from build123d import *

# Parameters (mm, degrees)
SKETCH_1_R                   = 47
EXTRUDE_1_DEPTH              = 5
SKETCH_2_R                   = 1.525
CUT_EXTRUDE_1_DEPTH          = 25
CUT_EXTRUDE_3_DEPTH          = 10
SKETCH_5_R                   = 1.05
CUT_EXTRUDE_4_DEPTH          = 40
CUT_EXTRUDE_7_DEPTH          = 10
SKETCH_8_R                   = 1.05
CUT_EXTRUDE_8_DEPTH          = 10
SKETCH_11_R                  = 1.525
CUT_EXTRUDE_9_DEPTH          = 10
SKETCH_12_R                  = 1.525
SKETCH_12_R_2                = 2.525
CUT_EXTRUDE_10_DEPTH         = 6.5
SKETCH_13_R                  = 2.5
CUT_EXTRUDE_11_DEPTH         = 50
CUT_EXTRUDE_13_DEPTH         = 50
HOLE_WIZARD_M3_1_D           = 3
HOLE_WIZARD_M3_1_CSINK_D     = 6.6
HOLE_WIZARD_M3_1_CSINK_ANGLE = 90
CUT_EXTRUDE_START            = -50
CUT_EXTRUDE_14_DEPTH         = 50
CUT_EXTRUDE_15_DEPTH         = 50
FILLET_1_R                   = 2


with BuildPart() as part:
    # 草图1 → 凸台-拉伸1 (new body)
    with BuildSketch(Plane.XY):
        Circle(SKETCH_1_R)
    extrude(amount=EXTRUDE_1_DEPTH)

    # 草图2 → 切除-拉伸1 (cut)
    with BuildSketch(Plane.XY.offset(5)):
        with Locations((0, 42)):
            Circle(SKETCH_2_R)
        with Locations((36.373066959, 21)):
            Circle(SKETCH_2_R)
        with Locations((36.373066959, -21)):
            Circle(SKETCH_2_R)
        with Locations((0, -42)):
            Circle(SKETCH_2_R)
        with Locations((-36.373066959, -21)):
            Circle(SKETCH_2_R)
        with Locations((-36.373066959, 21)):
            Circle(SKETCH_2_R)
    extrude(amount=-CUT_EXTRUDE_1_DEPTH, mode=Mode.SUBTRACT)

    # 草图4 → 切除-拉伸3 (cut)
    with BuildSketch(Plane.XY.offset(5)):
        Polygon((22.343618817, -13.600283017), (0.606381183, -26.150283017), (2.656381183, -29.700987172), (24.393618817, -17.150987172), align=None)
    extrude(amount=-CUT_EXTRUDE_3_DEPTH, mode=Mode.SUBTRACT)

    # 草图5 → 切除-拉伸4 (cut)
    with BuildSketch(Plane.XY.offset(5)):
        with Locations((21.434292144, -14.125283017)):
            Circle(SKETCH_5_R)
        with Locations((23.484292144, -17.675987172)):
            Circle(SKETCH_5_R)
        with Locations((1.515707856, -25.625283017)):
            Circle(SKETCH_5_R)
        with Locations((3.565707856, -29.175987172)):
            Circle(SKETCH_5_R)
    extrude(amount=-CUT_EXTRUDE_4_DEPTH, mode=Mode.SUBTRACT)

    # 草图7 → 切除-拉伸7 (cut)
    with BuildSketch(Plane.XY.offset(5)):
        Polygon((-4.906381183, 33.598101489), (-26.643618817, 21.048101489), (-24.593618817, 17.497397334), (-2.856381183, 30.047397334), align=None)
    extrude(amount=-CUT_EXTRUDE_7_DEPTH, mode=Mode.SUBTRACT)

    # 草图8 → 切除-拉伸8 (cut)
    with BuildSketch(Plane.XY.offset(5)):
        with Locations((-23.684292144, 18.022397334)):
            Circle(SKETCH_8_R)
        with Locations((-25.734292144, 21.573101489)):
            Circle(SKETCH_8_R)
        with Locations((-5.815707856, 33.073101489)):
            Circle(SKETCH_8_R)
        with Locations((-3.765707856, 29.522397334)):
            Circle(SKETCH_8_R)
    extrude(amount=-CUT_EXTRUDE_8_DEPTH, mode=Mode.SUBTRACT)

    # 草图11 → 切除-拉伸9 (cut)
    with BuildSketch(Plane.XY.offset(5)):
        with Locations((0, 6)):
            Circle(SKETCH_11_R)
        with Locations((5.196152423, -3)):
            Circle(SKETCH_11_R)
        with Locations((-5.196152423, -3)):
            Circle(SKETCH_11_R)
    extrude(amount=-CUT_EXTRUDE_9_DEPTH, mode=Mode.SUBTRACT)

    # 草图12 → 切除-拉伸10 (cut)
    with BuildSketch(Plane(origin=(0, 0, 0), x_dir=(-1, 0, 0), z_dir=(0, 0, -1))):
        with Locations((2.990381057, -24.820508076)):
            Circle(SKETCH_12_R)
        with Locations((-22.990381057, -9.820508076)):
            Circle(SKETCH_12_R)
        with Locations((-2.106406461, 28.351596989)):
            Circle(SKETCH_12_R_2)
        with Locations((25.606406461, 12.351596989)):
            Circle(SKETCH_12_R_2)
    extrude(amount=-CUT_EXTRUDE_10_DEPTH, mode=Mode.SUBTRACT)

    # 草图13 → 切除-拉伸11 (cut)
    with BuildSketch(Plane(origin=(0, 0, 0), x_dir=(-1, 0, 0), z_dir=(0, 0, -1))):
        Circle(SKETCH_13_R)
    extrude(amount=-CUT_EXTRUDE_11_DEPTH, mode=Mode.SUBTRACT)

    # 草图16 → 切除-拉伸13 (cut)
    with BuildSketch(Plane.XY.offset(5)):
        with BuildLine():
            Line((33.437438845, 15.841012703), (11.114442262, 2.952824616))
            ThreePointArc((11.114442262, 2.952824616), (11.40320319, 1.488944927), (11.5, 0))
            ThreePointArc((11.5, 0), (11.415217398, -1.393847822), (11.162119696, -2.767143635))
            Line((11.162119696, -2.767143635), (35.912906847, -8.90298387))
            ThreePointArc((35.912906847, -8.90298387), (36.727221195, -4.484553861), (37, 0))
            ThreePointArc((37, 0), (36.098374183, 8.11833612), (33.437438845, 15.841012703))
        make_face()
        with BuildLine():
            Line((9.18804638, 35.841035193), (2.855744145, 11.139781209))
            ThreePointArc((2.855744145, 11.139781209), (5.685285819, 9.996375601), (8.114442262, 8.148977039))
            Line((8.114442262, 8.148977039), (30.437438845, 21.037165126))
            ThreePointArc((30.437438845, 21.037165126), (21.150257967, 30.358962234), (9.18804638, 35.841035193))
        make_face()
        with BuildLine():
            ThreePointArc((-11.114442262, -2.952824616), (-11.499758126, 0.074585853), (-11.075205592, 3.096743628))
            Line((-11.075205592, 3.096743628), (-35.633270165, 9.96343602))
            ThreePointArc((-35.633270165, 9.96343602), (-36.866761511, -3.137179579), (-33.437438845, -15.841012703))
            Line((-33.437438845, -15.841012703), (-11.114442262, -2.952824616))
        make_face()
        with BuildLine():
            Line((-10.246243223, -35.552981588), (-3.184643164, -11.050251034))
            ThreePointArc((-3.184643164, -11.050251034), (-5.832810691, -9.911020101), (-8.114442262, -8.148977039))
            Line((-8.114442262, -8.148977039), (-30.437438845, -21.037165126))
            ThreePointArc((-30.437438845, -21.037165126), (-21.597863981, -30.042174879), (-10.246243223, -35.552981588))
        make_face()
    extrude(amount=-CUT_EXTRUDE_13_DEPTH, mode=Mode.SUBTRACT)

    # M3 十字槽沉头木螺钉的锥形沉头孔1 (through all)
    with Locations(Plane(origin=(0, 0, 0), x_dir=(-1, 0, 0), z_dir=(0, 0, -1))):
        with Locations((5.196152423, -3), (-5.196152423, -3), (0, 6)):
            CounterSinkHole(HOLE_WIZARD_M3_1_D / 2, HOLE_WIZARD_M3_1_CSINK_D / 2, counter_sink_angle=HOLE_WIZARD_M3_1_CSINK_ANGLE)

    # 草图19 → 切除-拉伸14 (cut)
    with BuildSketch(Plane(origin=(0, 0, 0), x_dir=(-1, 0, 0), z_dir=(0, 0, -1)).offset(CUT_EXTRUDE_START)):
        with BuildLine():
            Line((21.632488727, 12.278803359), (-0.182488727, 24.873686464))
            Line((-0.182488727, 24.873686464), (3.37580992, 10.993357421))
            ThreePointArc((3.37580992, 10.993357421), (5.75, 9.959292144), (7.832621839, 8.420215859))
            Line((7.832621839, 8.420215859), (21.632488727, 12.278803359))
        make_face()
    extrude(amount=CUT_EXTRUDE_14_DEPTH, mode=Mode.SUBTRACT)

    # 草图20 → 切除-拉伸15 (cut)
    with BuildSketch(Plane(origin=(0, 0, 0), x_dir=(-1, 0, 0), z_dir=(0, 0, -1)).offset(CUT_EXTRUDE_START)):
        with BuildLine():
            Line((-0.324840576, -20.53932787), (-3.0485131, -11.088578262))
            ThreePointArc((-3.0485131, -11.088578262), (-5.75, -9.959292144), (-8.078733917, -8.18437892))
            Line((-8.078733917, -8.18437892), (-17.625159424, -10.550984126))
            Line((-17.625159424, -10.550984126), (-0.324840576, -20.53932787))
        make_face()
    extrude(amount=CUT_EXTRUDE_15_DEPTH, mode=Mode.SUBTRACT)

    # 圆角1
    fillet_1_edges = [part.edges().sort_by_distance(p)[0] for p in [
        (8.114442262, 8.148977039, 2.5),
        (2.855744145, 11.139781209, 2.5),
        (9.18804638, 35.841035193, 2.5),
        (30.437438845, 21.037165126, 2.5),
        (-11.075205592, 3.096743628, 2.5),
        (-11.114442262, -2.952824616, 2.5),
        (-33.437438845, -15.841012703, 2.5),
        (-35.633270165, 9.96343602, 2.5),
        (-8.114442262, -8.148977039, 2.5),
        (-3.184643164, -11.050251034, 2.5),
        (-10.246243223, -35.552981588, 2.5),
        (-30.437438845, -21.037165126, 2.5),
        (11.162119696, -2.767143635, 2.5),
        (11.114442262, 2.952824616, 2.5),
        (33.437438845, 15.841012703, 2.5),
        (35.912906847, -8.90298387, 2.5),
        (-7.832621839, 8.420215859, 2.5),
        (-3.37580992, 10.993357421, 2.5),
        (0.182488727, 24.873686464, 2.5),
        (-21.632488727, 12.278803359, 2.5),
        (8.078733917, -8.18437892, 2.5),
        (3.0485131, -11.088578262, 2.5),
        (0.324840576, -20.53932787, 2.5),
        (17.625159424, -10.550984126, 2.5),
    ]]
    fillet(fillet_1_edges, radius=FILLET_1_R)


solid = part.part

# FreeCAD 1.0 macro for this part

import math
import FreeCAD as App
import Part
import Sketcher

V = App.Vector
Q = App.Units.Quantity


def edges_at(feature, points):
    """Names of the edges that pass closest to the given points."""
    edges = feature.Shape.Edges
    near = lambda p: min(range(len(edges)), key=lambda i: edges[i].distToShape(Part.Vertex(*p))[0])
    return sorted({f"Edge{near(p) + 1}" for p in points})

doc = App.newDocument("Part")
params = doc.addObject("Spreadsheet::Sheet", "Params")
for row, (alias, value) in enumerate([
    ("sketch1_diameter", "94 mm"),
    ("pad1_length", "5 mm"),
    ("sketch2_diameter", "3.05 mm"),
    ("pocket1_length", "25 mm"),
    ("sketch3_length", "25.1 mm"),
    ("sketch3_length2", "4.1 mm"),
    ("pocket2_length", "10 mm"),
    ("sketch4_diameter", "2.1 mm"),
    ("pocket3_length", "40 mm"),
    ("sketch5_length", "25.1 mm"),
    ("sketch5_length2", "4.1 mm"),
    ("pocket4_length", "10 mm"),
    ("sketch6_diameter", "2.1 mm"),
    ("pocket5_length", "10 mm"),
    ("sketch7_diameter", "3.05 mm"),
    ("pocket6_length", "10 mm"),
    ("sketch8_diameter", "3.05 mm"),
    ("sketch8_diameter2", "5.05 mm"),
    ("pocket7_length", "6.5 mm"),
    ("sketch9_diameter", "5 mm"),
    ("pocket8_length", "50 mm"),
    ("sketch10_radius", "37 mm"),
    ("sketch10_radius2", "11.5 mm"),
    ("pocket9_length", "50 mm"),
    ("sketch11_diameter", "3 mm"),
    ("hole_diameter", "3 mm"),
    ("hole_csink_diameter", "6.6 mm"),
    ("sketch12_radius", "11.5 mm"),
    ("pocket10_length", "50 mm"),
    ("sketch13_radius", "11.5 mm"),
    ("pocket11_length", "50 mm"),
    ("fillet_radius", "2 mm"),
], start=1):
    params.set(f"A{row}", alias)
    params.set(f"B{row}", "=" + value)
    params.setAlias(f"B{row}", alias)

body = doc.addObject("PartDesign::Body", "Body")

# Sketch on XY plane
sketch1 = body.newObject("Sketcher::SketchObject", "Sketch")
sketch1.AttachmentSupport = (doc.getObject("XY_Plane"), [""])
sketch1.MapMode = "FlatFace"
sketch1.addGeometry(Part.Circle(V(0, 0, 0), V(0, 0, 1), 47), False)
sketch1.addConstraint(Sketcher.Constraint("Coincident", 0, 3, -1, 1))
sketch1.addConstraint(Sketcher.Constraint("Diameter", 0, 94.0))
sketch1.setExpression("Constraints[1]", "Params.sketch1_diameter")
pad1 = body.newObject("PartDesign::Pad", "Pad")
pad1.Profile = sketch1
pad1.setExpression("Length", "Params.pad1_length")

# Sketch on XY plane
sketch2 = body.newObject("Sketcher::SketchObject", "Sketch001")
sketch2.AttachmentSupport = (doc.getObject("XY_Plane"), [""])
sketch2.MapMode = "FlatFace"
sketch2.AttachmentOffset = App.Placement(V(0, 0, 5), App.Rotation())
sketch2.addGeometry(Part.Circle(V(0, 42, 0), V(0, 0, 1), 1.5), False)
sketch2.addGeometry(Part.Circle(V(36.4, 21, 0), V(0, 0, 1), 1.5), False)
sketch2.addGeometry(Part.Circle(V(36.4, -21, 0), V(0, 0, 1), 1.5), False)
sketch2.addGeometry(Part.Circle(V(0, -42, 0), V(0, 0, 1), 1.5), False)
sketch2.addGeometry(Part.Circle(V(-36.4, -21, 0), V(0, 0, 1), 1.5), False)
sketch2.addGeometry(Part.Circle(V(-36.4, 21, 0), V(0, 0, 1), 1.5), False)
sketch2.addConstraint(Sketcher.Constraint("Equal", 0, 1))
sketch2.addConstraint(Sketcher.Constraint("Equal", 1, 2))
sketch2.addConstraint(Sketcher.Constraint("Equal", 2, 3))
sketch2.addConstraint(Sketcher.Constraint("Equal", 3, 4))
sketch2.addConstraint(Sketcher.Constraint("Equal", 4, 5))
sketch2.addConstraint(Sketcher.Constraint("Symmetric", 0, 3, 3, 3, -1, 1))
sketch2.addConstraint(Sketcher.Constraint("Symmetric", 1, 3, 4, 3, -1, 1))
sketch2.addConstraint(Sketcher.Constraint("Symmetric", 2, 3, 5, 3, -1, 1))
sketch2.addConstraint(Sketcher.Constraint("Symmetric", 2, 3, 4, 3, -2))
sketch2.addConstraint(Sketcher.Constraint("PointOnObject", 0, 3, -2))
sketch2.addConstraint(Sketcher.Constraint("Diameter", 0, 3.05))
sketch2.addConstraint(Sketcher.Constraint("DistanceY", -1, 1, 0, 3, 42.0))
sketch2.addConstraint(Sketcher.Constraint("DistanceY", -1, 1, 1, 3, 21.0))
sketch2.addConstraint(Sketcher.Constraint("DistanceX", -1, 1, 1, 3, 36.373067))
sketch2.setExpression("Constraints[10]", "Params.sketch2_diameter")
pocket1 = body.newObject("PartDesign::Pocket", "Pocket")
pocket1.Profile = sketch2
pocket1.setExpression("Length", "Params.pocket1_length")

# Sketch on XY plane
sketch3 = body.newObject("Sketcher::SketchObject", "Sketch002")
sketch3.AttachmentSupport = (doc.getObject("XY_Plane"), [""])
sketch3.MapMode = "FlatFace"
sketch3.AttachmentOffset = App.Placement(V(0, 0, 5), App.Rotation())
sketch3.addGeometry(Part.LineSegment(V(22.3, -13.6, 0), V(0.6, -26.2, 0)), False)
sketch3.addGeometry(Part.LineSegment(V(0.6, -26.2, 0), V(2.7, -29.7, 0)), False)
sketch3.addGeometry(Part.LineSegment(V(2.7, -29.7, 0), V(24.4, -17.2, 0)), False)
sketch3.addGeometry(Part.LineSegment(V(24.4, -17.2, 0), V(22.3, -13.6, 0)), False)
sketch3.addConstraint(Sketcher.Constraint("Coincident", 0, 2, 1, 1))
sketch3.addConstraint(Sketcher.Constraint("Coincident", 1, 2, 2, 1))
sketch3.addConstraint(Sketcher.Constraint("Coincident", 2, 2, 3, 1))
sketch3.addConstraint(Sketcher.Constraint("Coincident", 3, 2, 0, 1))
sketch3.addConstraint(Sketcher.Constraint("Perpendicular", 0, 1))
sketch3.addConstraint(Sketcher.Constraint("Perpendicular", 1, 2))
sketch3.addConstraint(Sketcher.Constraint("Perpendicular", 2, 3))
sketch3.addConstraint(Sketcher.Constraint("Angle", 0, Q("-150 deg")))
sketch3.addConstraint(Sketcher.Constraint("Distance", 0, 25.1))
sketch3.addConstraint(Sketcher.Constraint("Distance", 1, 4.1))
sketch3.addConstraint(Sketcher.Constraint("DistanceX", -1, 1, 0, 2, 0.606381))
sketch3.addConstraint(Sketcher.Constraint("DistanceY", 0, 2, -1, 1, 26.150283))
sketch3.setExpression("Constraints[8]", "Params.sketch3_length")
sketch3.setExpression("Constraints[9]", "Params.sketch3_length2")
pocket2 = body.newObject("PartDesign::Pocket", "Pocket001")
pocket2.Profile = sketch3
pocket2.setExpression("Length", "Params.pocket2_length")

# Sketch on XY plane
sketch4 = body.newObject("Sketcher::SketchObject", "Sketch003")
sketch4.AttachmentSupport = (doc.getObject("XY_Plane"), [""])
sketch4.MapMode = "FlatFace"
sketch4.AttachmentOffset = App.Placement(V(0, 0, 5), App.Rotation())
sketch4.addGeometry(Part.Circle(V(21.4, -14.1, 0), V(0, 0, 1), 1.1), False)
sketch4.addGeometry(Part.Circle(V(23.5, -17.7, 0), V(0, 0, 1), 1.1), False)
sketch4.addGeometry(Part.Circle(V(1.5, -25.6, 0), V(0, 0, 1), 1.1), False)
sketch4.addGeometry(Part.Circle(V(3.6, -29.2, 0), V(0, 0, 1), 1.1), False)
sketch4.addConstraint(Sketcher.Constraint("Equal", 0, 1))
sketch4.addConstraint(Sketcher.Constraint("Equal", 1, 2))
sketch4.addConstraint(Sketcher.Constraint("Equal", 2, 3))
sketch4.addConstraint(Sketcher.Constraint("Diameter", 0, 2.1))
sketch4.addConstraint(Sketcher.Constraint("DistanceY", 2, 3, 0, 3, 11.5))
sketch4.addConstraint(Sketcher.Constraint("DistanceY", 3, 3, 1, 3, 11.5))
sketch4.addConstraint(Sketcher.Constraint("DistanceX", 0, 3, 1, 3, 2.05))
sketch4.addConstraint(Sketcher.Constraint("DistanceX", 2, 3, 3, 3, 2.05))
sketch4.addConstraint(Sketcher.Constraint("DistanceX", -1, 1, 0, 3, 21.434292))
sketch4.addConstraint(Sketcher.Constraint("DistanceY", 0, 3, -1, 1, 14.125283))
sketch4.addConstraint(Sketcher.Constraint("DistanceY", 1, 3, -1, 1, 17.675987))
sketch4.addConstraint(Sketcher.Constraint("DistanceX", -1, 1, 2, 3, 1.515708))
sketch4.setExpression("Constraints[3]", "Params.sketch4_diameter")
pocket3 = body.newObject("PartDesign::Pocket", "Pocket002")
pocket3.Profile = sketch4
pocket3.setExpression("Length", "Params.pocket3_length")

# Sketch on XY plane
sketch5 = body.newObject("Sketcher::SketchObject", "Sketch004")
sketch5.AttachmentSupport = (doc.getObject("XY_Plane"), [""])
sketch5.MapMode = "FlatFace"
sketch5.AttachmentOffset = App.Placement(V(0, 0, 5), App.Rotation())
sketch5.addGeometry(Part.LineSegment(V(-4.9, 33.6, 0), V(-26.6, 21, 0)), False)
sketch5.addGeometry(Part.LineSegment(V(-26.6, 21, 0), V(-24.6, 17.5, 0)), False)
sketch5.addGeometry(Part.LineSegment(V(-24.6, 17.5, 0), V(-2.9, 30, 0)), False)
sketch5.addGeometry(Part.LineSegment(V(-2.9, 30, 0), V(-4.9, 33.6, 0)), False)
sketch5.addConstraint(Sketcher.Constraint("Coincident", 0, 2, 1, 1))
sketch5.addConstraint(Sketcher.Constraint("Coincident", 1, 2, 2, 1))
sketch5.addConstraint(Sketcher.Constraint("Coincident", 2, 2, 3, 1))
sketch5.addConstraint(Sketcher.Constraint("Coincident", 3, 2, 0, 1))
sketch5.addConstraint(Sketcher.Constraint("Perpendicular", 0, 1))
sketch5.addConstraint(Sketcher.Constraint("Perpendicular", 1, 2))
sketch5.addConstraint(Sketcher.Constraint("Perpendicular", 2, 3))
sketch5.addConstraint(Sketcher.Constraint("Angle", 0, Q("-150 deg")))
sketch5.addConstraint(Sketcher.Constraint("Distance", 0, 25.1))
sketch5.addConstraint(Sketcher.Constraint("Distance", 1, 4.1))
sketch5.addConstraint(Sketcher.Constraint("DistanceY", -1, 1, 0, 2, 21.048101))
sketch5.addConstraint(Sketcher.Constraint("DistanceX", 0, 2, -1, 1, 26.643619))
sketch5.setExpression("Constraints[8]", "Params.sketch5_length")
sketch5.setExpression("Constraints[9]", "Params.sketch5_length2")
pocket4 = body.newObject("PartDesign::Pocket", "Pocket003")
pocket4.Profile = sketch5
pocket4.setExpression("Length", "Params.pocket4_length")

# Sketch on XY plane
sketch6 = body.newObject("Sketcher::SketchObject", "Sketch005")
sketch6.AttachmentSupport = (doc.getObject("XY_Plane"), [""])
sketch6.MapMode = "FlatFace"
sketch6.AttachmentOffset = App.Placement(V(0, 0, 5), App.Rotation())
sketch6.addGeometry(Part.Circle(V(-23.7, 18, 0), V(0, 0, 1), 1.1), False)
sketch6.addGeometry(Part.Circle(V(-25.7, 21.6, 0), V(0, 0, 1), 1.1), False)
sketch6.addGeometry(Part.Circle(V(-5.8, 33.1, 0), V(0, 0, 1), 1.1), False)
sketch6.addGeometry(Part.Circle(V(-3.8, 29.5, 0), V(0, 0, 1), 1.1), False)
sketch6.addConstraint(Sketcher.Constraint("Equal", 0, 1))
sketch6.addConstraint(Sketcher.Constraint("Equal", 1, 2))
sketch6.addConstraint(Sketcher.Constraint("Equal", 2, 3))
sketch6.addConstraint(Sketcher.Constraint("Diameter", 0, 2.1))
sketch6.addConstraint(Sketcher.Constraint("DistanceY", 1, 3, 2, 3, 11.5))
sketch6.addConstraint(Sketcher.Constraint("DistanceY", 0, 3, 3, 3, 11.5))
sketch6.addConstraint(Sketcher.Constraint("DistanceX", 1, 3, 0, 3, 2.05))
sketch6.addConstraint(Sketcher.Constraint("DistanceX", 2, 3, 3, 3, 2.05))
sketch6.addConstraint(Sketcher.Constraint("DistanceY", -1, 1, 1, 3, 21.573101))
sketch6.addConstraint(Sketcher.Constraint("DistanceX", 0, 3, -1, 1, 23.684292))
sketch6.addConstraint(Sketcher.Constraint("DistanceY", -1, 1, 0, 3, 18.022397))
sketch6.addConstraint(Sketcher.Constraint("DistanceX", 2, 3, -1, 1, 5.815708))
sketch6.setExpression("Constraints[3]", "Params.sketch6_diameter")
pocket5 = body.newObject("PartDesign::Pocket", "Pocket004")
pocket5.Profile = sketch6
pocket5.setExpression("Length", "Params.pocket5_length")

# Sketch on XY plane
sketch7 = body.newObject("Sketcher::SketchObject", "Sketch006")
sketch7.AttachmentSupport = (doc.getObject("XY_Plane"), [""])
sketch7.MapMode = "FlatFace"
sketch7.AttachmentOffset = App.Placement(V(0, 0, 5), App.Rotation())
sketch7.addGeometry(Part.Circle(V(0, 6, 0), V(0, 0, 1), 1.5), False)
sketch7.addGeometry(Part.Circle(V(5.2, -3, 0), V(0, 0, 1), 1.5), False)
sketch7.addGeometry(Part.Circle(V(-5.2, -3, 0), V(0, 0, 1), 1.5), False)
sketch7.addConstraint(Sketcher.Constraint("Equal", 0, 1))
sketch7.addConstraint(Sketcher.Constraint("Equal", 1, 2))
sketch7.addConstraint(Sketcher.Constraint("Symmetric", 1, 3, 2, 3, -2))
sketch7.addConstraint(Sketcher.Constraint("PointOnObject", 0, 3, -2))
sketch7.addConstraint(Sketcher.Constraint("Diameter", 0, 3.05))
sketch7.addConstraint(Sketcher.Constraint("DistanceY", -1, 1, 0, 3, 6.0))
sketch7.addConstraint(Sketcher.Constraint("DistanceY", 1, 3, -1, 1, 3.0))
sketch7.addConstraint(Sketcher.Constraint("DistanceX", -1, 1, 1, 3, 5.196152))
sketch7.setExpression("Constraints[4]", "Params.sketch7_diameter")
pocket6 = body.newObject("PartDesign::Pocket", "Pocket005")
pocket6.Profile = sketch7
pocket6.setExpression("Length", "Params.pocket6_length")

# Sketch on XY plane
sketch8 = body.newObject("Sketcher::SketchObject", "Sketch007")
sketch8.AttachmentSupport = (doc.getObject("XY_Plane"), [""])
sketch8.MapMode = "FlatFace"
sketch8.addGeometry(Part.Circle(V(-3, -24.8, 0), V(0, 0, 1), 1.5), False)
sketch8.addGeometry(Part.Circle(V(23, -9.8, 0), V(0, 0, 1), 1.5), False)
sketch8.addGeometry(Part.Circle(V(2.1, 28.4, 0), V(0, 0, 1), 2.5), False)
sketch8.addGeometry(Part.Circle(V(-25.6, 12.4, 0), V(0, 0, 1), 2.5), False)
sketch8.addConstraint(Sketcher.Constraint("Equal", 0, 1))
sketch8.addConstraint(Sketcher.Constraint("Equal", 2, 3))
sketch8.addConstraint(Sketcher.Constraint("Diameter", 0, 3.05))
sketch8.addConstraint(Sketcher.Constraint("Diameter", 2, 5.05))
sketch8.addConstraint(Sketcher.Constraint("DistanceY", 0, 3, 1, 3, 15.0))
sketch8.addConstraint(Sketcher.Constraint("DistanceY", 3, 3, 2, 3, 16.0))
sketch8.addConstraint(Sketcher.Constraint("DistanceX", 0, 3, -1, 1, 2.990381))
sketch8.addConstraint(Sketcher.Constraint("DistanceY", 0, 3, -1, 1, 24.820508))
sketch8.addConstraint(Sketcher.Constraint("DistanceX", -1, 1, 1, 3, 22.990381))
sketch8.addConstraint(Sketcher.Constraint("DistanceX", -1, 1, 2, 3, 2.106406))
sketch8.addConstraint(Sketcher.Constraint("DistanceY", -1, 1, 2, 3, 28.351597))
sketch8.addConstraint(Sketcher.Constraint("DistanceX", 3, 3, -1, 1, 25.606406))
sketch8.setExpression("Constraints[2]", "Params.sketch8_diameter")
sketch8.setExpression("Constraints[3]", "Params.sketch8_diameter2")
pocket7 = body.newObject("PartDesign::Pocket", "Pocket006")
pocket7.Profile = sketch8
pocket7.setExpression("Length", "Params.pocket7_length")
pocket7.Reversed = True

# Sketch on XY plane
sketch9 = body.newObject("Sketcher::SketchObject", "Sketch008")
sketch9.AttachmentSupport = (doc.getObject("XY_Plane"), [""])
sketch9.MapMode = "FlatFace"
sketch9.addGeometry(Part.Circle(V(0, 0, 0), V(0, 0, 1), 2.5), False)
sketch9.addConstraint(Sketcher.Constraint("Coincident", 0, 3, -1, 1))
sketch9.addConstraint(Sketcher.Constraint("Diameter", 0, 5.0))
sketch9.setExpression("Constraints[1]", "Params.sketch9_diameter")
pocket8 = body.newObject("PartDesign::Pocket", "Pocket007")
pocket8.Profile = sketch9
pocket8.setExpression("Length", "Params.pocket8_length")
pocket8.Reversed = True

# Sketch on XY plane
sketch10 = body.newObject("Sketcher::SketchObject", "Sketch009")
sketch10.AttachmentSupport = (doc.getObject("XY_Plane"), [""])
sketch10.MapMode = "FlatFace"
sketch10.AttachmentOffset = App.Placement(V(0, 0, 5), App.Rotation())
sketch10.addGeometry(Part.LineSegment(V(33.4, 15.8, 0), V(11.1, 3, 0)), False)
sketch10.addGeometry(Part.ArcOfCircle(Part.Circle(V(0, 0, 0), V(0, 0, 1), 11.5), math.radians(0), math.radians(14.88)), False)
sketch10.addGeometry(Part.ArcOfCircle(Part.Circle(V(0, 0, 0), V(0, 0, 1), 11.5), math.radians(-13.92), math.radians(0)), False)
sketch10.addGeometry(Part.LineSegment(V(11.2, -2.8, 0), V(35.9, -8.9, 0)), False)
sketch10.addGeometry(Part.ArcOfCircle(Part.Circle(V(0, 0, 0), V(0, 0, 1), 37), math.radians(-13.92), math.radians(0)), False)
sketch10.addGeometry(Part.ArcOfCircle(Part.Circle(V(0, 0, 0), V(0, 0, 1), 37), math.radians(0), math.radians(25)), False)
sketch10.addGeometry(Part.LineSegment(V(9.2, 35.8, 0), V(2.9, 11.1, 0)), False)
sketch10.addGeometry(Part.ArcOfCircle(Part.Circle(V(0, 0, 0), V(0, 0, 1), 11.5), math.radians(45), math.radians(76)), False)
sketch10.addGeometry(Part.LineSegment(V(8.1, 8.1, 0), V(30.4, 21, 0)), False)
sketch10.addGeometry(Part.ArcOfCircle(Part.Circle(V(0, 0, 0), V(0, 0, 1), 37), math.radians(35), math.radians(76)), False)
sketch10.addGeometry(Part.ArcOfCircle(Part.Circle(V(0, 0, 0), V(0, 0, 1), 11.5), math.radians(164), math.radians(195)), False)
sketch10.addGeometry(Part.LineSegment(V(-11.1, 3.1, 0), V(-35.6, 10, 0)), False)
sketch10.addGeometry(Part.ArcOfCircle(Part.Circle(V(0, 0, 0), V(0, 0, 1), 37), math.radians(164), math.radians(205)), False)
sketch10.addGeometry(Part.LineSegment(V(-33.4, -15.8, 0), V(-11.1, -3, 0)), False)
sketch10.addGeometry(Part.LineSegment(V(-10.2, -35.6, 0), V(-3.2, -11.1, 0)), False)
sketch10.addGeometry(Part.ArcOfCircle(Part.Circle(V(0, 0, 0), V(0, 0, 1), 11.5), math.radians(-135), math.radians(-106)), False)
sketch10.addGeometry(Part.LineSegment(V(-8.1, -8.1, 0), V(-30.4, -21, 0)), False)
sketch10.addGeometry(Part.ArcOfCircle(Part.Circle(V(0, 0, 0), V(0, 0, 1), 37), math.radians(-145), math.radians(-106)), False)
sketch10.addConstraint(Sketcher.Constraint("Coincident", 0, 2, 1, 2))
sketch10.addConstraint(Sketcher.Constraint("Tangent", 1, 1, 2, 2))
sketch10.addConstraint(Sketcher.Constraint("Coincident", 2, 1, 3, 1))
sketch10.addConstraint(Sketcher.Constraint("Coincident", 3, 2, 4, 1))
sketch10.addConstraint(Sketcher.Constraint("Tangent", 4, 2, 5, 1))
sketch10.addConstraint(Sketcher.Constraint("Coincident", 5, 2, 0, 1))
sketch10.addConstraint(Sketcher.Constraint("Coincident", 6, 2, 7, 2))
sketch10.addConstraint(Sketcher.Constraint("Coincident", 7, 1, 8, 1))
sketch10.addConstraint(Sketcher.Constraint("Coincident", 8, 2, 9, 1))
sketch10.addConstraint(Sketcher.Constraint("Coincident", 9, 2, 6, 1))
sketch10.addConstraint(Sketcher.Constraint("Coincident", 10, 1, 11, 1))
sketch10.addConstraint(Sketcher.Constraint("Coincident", 11, 2, 12, 1))
sketch10.addConstraint(Sketcher.Constraint("Coincident", 12, 2, 13, 1))
sketch10.addConstraint(Sketcher.Constraint("Coincident", 13, 2, 10, 2))
sketch10.addConstraint(Sketcher.Constraint("Coincident", 14, 2, 15, 2))
sketch10.addConstraint(Sketcher.Constraint("Coincident", 15, 1, 16, 1))
sketch10.addConstraint(Sketcher.Constraint("Coincident", 16, 2, 17, 1))
sketch10.addConstraint(Sketcher.Constraint("Coincident", 17, 2, 14, 1))
sketch10.addConstraint(Sketcher.Constraint("Coincident", 1, 3, -1, 1))
sketch10.addConstraint(Sketcher.Constraint("Coincident", 4, 3, -1, 1))
sketch10.addConstraint(Sketcher.Constraint("Coincident", 7, 3, -1, 1))
sketch10.addConstraint(Sketcher.Constraint("Coincident", 9, 3, -1, 1))
sketch10.addConstraint(Sketcher.Constraint("Coincident", 10, 3, -1, 1))
sketch10.addConstraint(Sketcher.Constraint("Coincident", 12, 3, -1, 1))
sketch10.addConstraint(Sketcher.Constraint("Coincident", 15, 3, -1, 1))
sketch10.addConstraint(Sketcher.Constraint("Coincident", 17, 3, -1, 1))
sketch10.addConstraint(Sketcher.Constraint("Equal", 1, 2))
sketch10.addConstraint(Sketcher.Constraint("Equal", 4, 5))
sketch10.addConstraint(Sketcher.Constraint("Equal", 2, 7))
sketch10.addConstraint(Sketcher.Constraint("Equal", 5, 9))
sketch10.addConstraint(Sketcher.Constraint("Equal", 7, 10))
sketch10.addConstraint(Sketcher.Constraint("Equal", 9, 12))
sketch10.addConstraint(Sketcher.Constraint("Equal", 10, 15))
sketch10.addConstraint(Sketcher.Constraint("Equal", 12, 17))
sketch10.addConstraint(Sketcher.Constraint("PointOnObject", 1, 1, -1))
sketch10.addConstraint(Sketcher.Constraint("PointOnObject", 4, 2, -1))
sketch10.addConstraint(Sketcher.Constraint("Parallel", 0, 8))
sketch10.addConstraint(Sketcher.Constraint("Parallel", 8, 13))
sketch10.addConstraint(Sketcher.Constraint("Parallel", 13, 16))
sketch10.addConstraint(Sketcher.Constraint("Equal", 0, 8))
sketch10.addConstraint(Sketcher.Constraint("Equal", 8, 13))
sketch10.addConstraint(Sketcher.Constraint("Equal", 13, 16))
sketch10.addConstraint(Sketcher.Constraint("Radius", 4, 37.0))
sketch10.addConstraint(Sketcher.Constraint("Radius", 1, 11.5))
sketch10.addConstraint(Sketcher.Constraint("Angle", 0, Q("-150 deg")))
sketch10.addConstraint(Sketcher.Constraint("DistanceX", 7, 1, 0, 2, 3.0))
sketch10.addConstraint(Sketcher.Constraint("DistanceX", 6, 2, 7, 1, 5.258698))
sketch10.addConstraint(Sketcher.Constraint("DistanceX", 13, 2, 14, 2, 7.929799))
sketch10.addConstraint(Sketcher.Constraint("DistanceX", 17, 2, 14, 2, 7.0616))
sketch10.addConstraint(Sketcher.Constraint("DistanceX", -1, 1, 2, 1, 11.16212))
sketch10.addConstraint(Sketcher.Constraint("DistanceX", 11, 2, -1, 1, 35.63327))
sketch10.addConstraint(Sketcher.Constraint("DistanceY", 3, 2, 2, 1, 6.13584))
sketch10.addConstraint(Sketcher.Constraint("DistanceY", 8, 2, 9, 2, 14.80387))
sketch10.addConstraint(Sketcher.Constraint("DistanceY", 13, 2, 10, 1, 6.049568))
sketch10.setExpression("Constraints[42]", "Params.sketch10_radius")
sketch10.setExpression("Constraints[43]", "Params.sketch10_radius2")
pocket9 = body.newObject("PartDesign::Pocket", "Pocket008")
pocket9.Profile = sketch10
pocket9.setExpression("Length", "Params.pocket9_length")

# Sketch on XY plane
sketch11 = body.newObject("Sketcher::SketchObject", "Sketch010")
sketch11.AttachmentSupport = (doc.getObject("XY_Plane"), [""])
sketch11.MapMode = "FlatFace"
sketch11.addGeometry(Part.Circle(V(-5.2, -3, 0), V(0, 0, 1), 1.5), False)
sketch11.addGeometry(Part.Circle(V(5.2, -3, 0), V(0, 0, 1), 1.5), False)
sketch11.addGeometry(Part.Circle(V(0, 6, 0), V(0, 0, 1), 1.5), False)
sketch11.addConstraint(Sketcher.Constraint("Equal", 0, 1))
sketch11.addConstraint(Sketcher.Constraint("Equal", 1, 2))
sketch11.addConstraint(Sketcher.Constraint("Symmetric", 0, 3, 1, 3, -2))
sketch11.addConstraint(Sketcher.Constraint("PointOnObject", 2, 3, -2))
sketch11.addConstraint(Sketcher.Constraint("Diameter", 0, 3.0))
sketch11.addConstraint(Sketcher.Constraint("DistanceY", 0, 3, -1, 1, 3.0))
sketch11.addConstraint(Sketcher.Constraint("DistanceY", -1, 1, 2, 3, 6.0))
sketch11.addConstraint(Sketcher.Constraint("DistanceX", 0, 3, -1, 1, 5.196152))
sketch11.setExpression("Constraints[4]", "Params.sketch11_diameter")
doc.recompute()
hole = body.newObject("PartDesign::Hole", "Hole")
hole.Profile = sketch11
hole.ThreadType = "None"
hole.setExpression("Diameter", "Params.hole_diameter")
hole.DepthType = "ThroughAll"
hole.HoleCutType = "Countersink"
hole.setExpression("HoleCutDiameter", "Params.hole_csink_diameter")
hole.HoleCutCountersinkAngle = 90
hole.Reversed = True

# Sketch on XY plane
sketch12 = body.newObject("Sketcher::SketchObject", "Sketch011")
sketch12.AttachmentSupport = (doc.getObject("XY_Plane"), [""])
sketch12.MapMode = "FlatFace"
sketch12.AttachmentOffset = App.Placement(V(0, 0, 50), App.Rotation())
sketch12.addGeometry(Part.LineSegment(V(-22, 12, 0), V(0, 25, 0)), False)
sketch12.addGeometry(Part.LineSegment(V(0, 25, 0), V(-3, 11, 0)), False)
sketch12.addGeometry(Part.ArcOfCircle(Part.Circle(V(0, 0, 0), V(0, 0, 1), 11), math.radians(107), math.radians(133)), False)
sketch12.addGeometry(Part.LineSegment(V(-8, 8, 0), V(-22, 12, 0)), False)
sketch12.addConstraint(Sketcher.Constraint("Coincident", 0, 2, 1, 1))
sketch12.addConstraint(Sketcher.Constraint("Coincident", 1, 2, 2, 1))
sketch12.addConstraint(Sketcher.Constraint("Coincident", 2, 2, 3, 1))
sketch12.addConstraint(Sketcher.Constraint("Coincident", 3, 2, 0, 1))
sketch12.addConstraint(Sketcher.Constraint("Coincident", 2, 3, -1, 1))
sketch12.addConstraint(Sketcher.Constraint("Equal", 1, 3))
sketch12.addConstraint(Sketcher.Constraint("Radius", 2, 11.5))
sketch12.addConstraint(Sketcher.Constraint("Angle", 0, Q("30 deg")))
sketch12.addConstraint(Sketcher.Constraint("DistanceX", 1, 2, 0, 2, 3.558299))
sketch12.addConstraint(Sketcher.Constraint("DistanceX", -1, 1, 0, 2, 0.182489))
sketch12.addConstraint(Sketcher.Constraint("DistanceX", 2, 2, -1, 1, 7.832622))
sketch12.addConstraint(Sketcher.Constraint("DistanceX", 3, 2, -1, 1, 21.632489))
sketch12.setExpression("Constraints[6]", "Params.sketch12_radius")
pocket10 = body.newObject("PartDesign::Pocket", "Pocket009")
pocket10.Profile = sketch12
pocket10.setExpression("Length", "Params.pocket10_length")

# Sketch on XY plane
sketch13 = body.newObject("Sketcher::SketchObject", "Sketch012")
sketch13.AttachmentSupport = (doc.getObject("XY_Plane"), [""])
sketch13.MapMode = "FlatFace"
sketch13.AttachmentOffset = App.Placement(V(0, 0, 50), App.Rotation())
sketch13.addGeometry(Part.LineSegment(V(0, -21, 0), V(3, -11, 0)), False)
sketch13.addGeometry(Part.ArcOfCircle(Part.Circle(V(0, 0, 0), V(0, 0, 1), 11), math.radians(-75), math.radians(-45)), False)
sketch13.addGeometry(Part.LineSegment(V(8, -8, 0), V(18, -11, 0)), False)
sketch13.addGeometry(Part.LineSegment(V(18, -11, 0), V(0, -21, 0)), False)
sketch13.addConstraint(Sketcher.Constraint("Coincident", 0, 2, 1, 1))
sketch13.addConstraint(Sketcher.Constraint("Coincident", 1, 2, 2, 1))
sketch13.addConstraint(Sketcher.Constraint("Coincident", 2, 2, 3, 1))
sketch13.addConstraint(Sketcher.Constraint("Coincident", 3, 2, 0, 1))
sketch13.addConstraint(Sketcher.Constraint("Coincident", 1, 3, -1, 1))
sketch13.addConstraint(Sketcher.Constraint("Equal", 0, 2))
sketch13.addConstraint(Sketcher.Constraint("Radius", 1, 11.5))
sketch13.addConstraint(Sketcher.Constraint("Angle", 3, Q("-150 deg")))
sketch13.addConstraint(Sketcher.Constraint("Distance", 0, 9.835398))
sketch13.addConstraint(Sketcher.Constraint("DistanceY", 0, 2, 1, 2, 2.904199))
sketch13.addConstraint(Sketcher.Constraint("DistanceY", 0, 2, -1, 1, 11.088578))
sketch13.addConstraint(Sketcher.Constraint("DistanceX", -1, 1, 2, 2, 17.625159))
sketch13.setExpression("Constraints[6]", "Params.sketch13_radius")
pocket11 = body.newObject("PartDesign::Pocket", "Pocket010")
pocket11.Profile = sketch13
pocket11.setExpression("Length", "Params.pocket11_length")
doc.recompute()

fillet = body.newObject("PartDesign::Fillet", "Fillet")
fillet.Base = (pocket11, edges_at(pocket11, [
    (8.114, 8.149, 2.5),
    (2.856, 11.14, 2.5),
    (9.188, 35.841, 2.5),
    (30.437, 21.037, 2.5),
    (-11.075, 3.097, 2.5),
    (-11.114, -2.953, 2.5),
    (-33.437, -15.841, 2.5),
    (-35.633, 9.963, 2.5),
    (-8.114, -8.149, 2.5),
    (-3.185, -11.05, 2.5),
    (-10.246, -35.553, 2.5),
    (-30.437, -21.037, 2.5),
    (11.162, -2.767, 2.5),
    (11.114, 2.953, 2.5),
    (33.437, 15.841, 2.5),
    (35.913, -8.903, 2.5),
    (-7.833, 8.42, 2.5),
    (-3.376, 10.993, 2.5),
    (0.182, 24.874, 2.5),
    (-21.632, 12.279, 2.5),
    (8.079, -8.184, 2.5),
    (3.049, -11.089, 2.5),
    (0.325, -20.539, 2.5),
    (17.625, -10.551, 2.5),
]))
fillet.setExpression("Radius", "Params.fillet_radius")

doc.recompute()
